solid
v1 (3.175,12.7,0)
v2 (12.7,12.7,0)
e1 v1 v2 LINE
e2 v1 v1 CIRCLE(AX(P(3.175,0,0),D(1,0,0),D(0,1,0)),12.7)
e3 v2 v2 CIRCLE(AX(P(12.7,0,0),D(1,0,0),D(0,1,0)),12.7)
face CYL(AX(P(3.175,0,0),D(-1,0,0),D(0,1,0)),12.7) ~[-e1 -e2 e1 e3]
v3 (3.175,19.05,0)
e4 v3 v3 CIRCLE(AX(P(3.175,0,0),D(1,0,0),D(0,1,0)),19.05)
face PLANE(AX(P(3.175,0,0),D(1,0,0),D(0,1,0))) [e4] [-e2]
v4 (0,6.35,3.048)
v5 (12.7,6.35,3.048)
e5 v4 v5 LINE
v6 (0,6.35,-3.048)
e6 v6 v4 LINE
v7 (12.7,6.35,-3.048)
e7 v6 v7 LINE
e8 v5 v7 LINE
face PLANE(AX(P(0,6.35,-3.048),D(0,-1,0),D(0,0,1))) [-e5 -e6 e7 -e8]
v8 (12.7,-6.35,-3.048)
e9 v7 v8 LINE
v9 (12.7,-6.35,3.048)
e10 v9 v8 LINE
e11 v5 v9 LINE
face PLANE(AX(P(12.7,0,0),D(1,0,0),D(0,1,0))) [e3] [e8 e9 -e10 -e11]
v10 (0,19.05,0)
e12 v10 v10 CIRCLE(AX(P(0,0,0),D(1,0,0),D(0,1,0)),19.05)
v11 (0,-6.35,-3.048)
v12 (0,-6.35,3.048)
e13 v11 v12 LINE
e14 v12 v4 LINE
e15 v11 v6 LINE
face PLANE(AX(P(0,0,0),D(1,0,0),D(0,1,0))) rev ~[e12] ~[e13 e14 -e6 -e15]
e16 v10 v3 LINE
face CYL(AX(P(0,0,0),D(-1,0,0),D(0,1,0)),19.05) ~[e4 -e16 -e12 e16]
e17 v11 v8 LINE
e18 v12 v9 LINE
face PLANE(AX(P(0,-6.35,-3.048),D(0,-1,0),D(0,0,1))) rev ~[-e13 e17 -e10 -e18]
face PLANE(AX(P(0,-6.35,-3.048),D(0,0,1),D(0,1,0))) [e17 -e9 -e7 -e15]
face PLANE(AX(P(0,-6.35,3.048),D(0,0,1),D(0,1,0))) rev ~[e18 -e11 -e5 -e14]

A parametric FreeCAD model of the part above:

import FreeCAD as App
import Part
import Sketcher

V = App.Vector
Q = App.Units.Quantity


def add_polygon(sketch, points):
    """Adds a closed chain of lines whose ends are joined by coincident constraints."""
    first, n = sketch.GeometryCount, len(points)
    for a, b in zip(points, points[1:] + points[:1]):
        sketch.addGeometry(Part.LineSegment(App.Vector(*a, 0), App.Vector(*b, 0)), False)
    for i in range(n):
        sketch.addConstraint(Sketcher.Constraint("Coincident", first + i, 2, first + (i + 1) % n, 1))

doc = App.newDocument("Part")
params = doc.addObject("Spreadsheet::Sheet", "Params")
for row, (alias, value) in enumerate([
    ("sketch1_diameter", "1.5 in"),
    ("pad1_length", "0.125 in"),
    ("sketch2_diameter", "1 in"),
    ("pad2_length", "0.375 in"),
    ("sketch3_width", "0.5 in"),
    ("sketch3_height", "0.24 in"),
], start=1):
    params.set(f"A{row}", alias)
    params.set(f"B{row}", "=" + value)
    params.setAlias(f"B{row}", alias)

body = doc.addObject("PartDesign::Body", "Body")

sketch1 = doc.addObject("Sketcher::SketchObject", "Sketch")
body.addObject(sketch1)
sketch1.AttachmentSupport = (doc.YZ_Plane, [""])
sketch1.MapMode = "FlatFace"
sketch1.addGeometry(Part.Circle(V(0, 0, 0), V(0, 0, 1), 19.05), False)
sketch1.addConstraint([
    Sketcher.Constraint("Coincident", 0, 3, -1, 1),
    Sketcher.Constraint("Diameter", 0, Q("1.5 in")),
])
sketch1.setExpression("Constraints[1]", "Params.sketch1_diameter")
pad1 = doc.addObject("PartDesign::Pad", "Pad")
body.addObject(pad1)
pad1.Profile = sketch1
pad1.setExpression("Length", "Params.pad1_length")

sketch2 = doc.addObject("Sketcher::SketchObject", "Sketch001")
body.addObject(sketch2)
sketch2.AttachmentSupport = (doc.YZ_Plane, [""])
sketch2.MapMode = "FlatFace"
sketch2.AttachmentOffset = App.Placement(V(0, 0, 0.125 * 25.4), App.Rotation())
sketch2.addGeometry(Part.Circle(V(0, 0, 0), V(0, 0, 1), 12.7), False)
sketch2.addConstraint([
    Sketcher.Constraint("Coincident", 0, 3, -1, 1),
    Sketcher.Constraint("Diameter", 0, Q("1 in")),
])
sketch2.setExpression("Constraints[1]", "Params.sketch2_diameter")
pad2 = doc.addObject("PartDesign::Pad", "Pad001")
body.addObject(pad2)
pad2.Profile = sketch2
pad2.setExpression("Length", "Params.pad2_length")

sketch3 = doc.addObject("Sketcher::SketchObject", "Sketch002")
body.addObject(sketch3)
sketch3.AttachmentSupport = (doc.YZ_Plane, [""])
sketch3.MapMode = "FlatFace"
add_polygon(sketch3, [(-6.35, 3.048), (-6.35, -3.048), (6.35, -3.048), (6.35, 3.048)])
sketch3.addConstraint([
    Sketcher.Constraint("Vertical", 0),
    Sketcher.Constraint("Horizontal", 1),
    Sketcher.Constraint("Vertical", 2),
    Sketcher.Constraint("Horizontal", 3),
    Sketcher.Constraint("Symmetric", 0, 2, 2, 2, -1, 1),
    Sketcher.Constraint("DistanceX", 1, 1, 1, 2, Q("0.5 in")),
    Sketcher.Constraint("DistanceY", 0, 2, 0, 1, Q("0.24 in")),
])
sketch3.setExpression("Constraints[9]", "Params.sketch3_width")
sketch3.setExpression("Constraints[10]", "Params.sketch3_height")
pocket1 = doc.addObject("PartDesign::Pocket", "Pocket")
body.addObject(pocket1)
pocket1.Profile = sketch3
pocket1.Type = "ThroughAll"
pocket1.Reversed = True

doc.recompute()
